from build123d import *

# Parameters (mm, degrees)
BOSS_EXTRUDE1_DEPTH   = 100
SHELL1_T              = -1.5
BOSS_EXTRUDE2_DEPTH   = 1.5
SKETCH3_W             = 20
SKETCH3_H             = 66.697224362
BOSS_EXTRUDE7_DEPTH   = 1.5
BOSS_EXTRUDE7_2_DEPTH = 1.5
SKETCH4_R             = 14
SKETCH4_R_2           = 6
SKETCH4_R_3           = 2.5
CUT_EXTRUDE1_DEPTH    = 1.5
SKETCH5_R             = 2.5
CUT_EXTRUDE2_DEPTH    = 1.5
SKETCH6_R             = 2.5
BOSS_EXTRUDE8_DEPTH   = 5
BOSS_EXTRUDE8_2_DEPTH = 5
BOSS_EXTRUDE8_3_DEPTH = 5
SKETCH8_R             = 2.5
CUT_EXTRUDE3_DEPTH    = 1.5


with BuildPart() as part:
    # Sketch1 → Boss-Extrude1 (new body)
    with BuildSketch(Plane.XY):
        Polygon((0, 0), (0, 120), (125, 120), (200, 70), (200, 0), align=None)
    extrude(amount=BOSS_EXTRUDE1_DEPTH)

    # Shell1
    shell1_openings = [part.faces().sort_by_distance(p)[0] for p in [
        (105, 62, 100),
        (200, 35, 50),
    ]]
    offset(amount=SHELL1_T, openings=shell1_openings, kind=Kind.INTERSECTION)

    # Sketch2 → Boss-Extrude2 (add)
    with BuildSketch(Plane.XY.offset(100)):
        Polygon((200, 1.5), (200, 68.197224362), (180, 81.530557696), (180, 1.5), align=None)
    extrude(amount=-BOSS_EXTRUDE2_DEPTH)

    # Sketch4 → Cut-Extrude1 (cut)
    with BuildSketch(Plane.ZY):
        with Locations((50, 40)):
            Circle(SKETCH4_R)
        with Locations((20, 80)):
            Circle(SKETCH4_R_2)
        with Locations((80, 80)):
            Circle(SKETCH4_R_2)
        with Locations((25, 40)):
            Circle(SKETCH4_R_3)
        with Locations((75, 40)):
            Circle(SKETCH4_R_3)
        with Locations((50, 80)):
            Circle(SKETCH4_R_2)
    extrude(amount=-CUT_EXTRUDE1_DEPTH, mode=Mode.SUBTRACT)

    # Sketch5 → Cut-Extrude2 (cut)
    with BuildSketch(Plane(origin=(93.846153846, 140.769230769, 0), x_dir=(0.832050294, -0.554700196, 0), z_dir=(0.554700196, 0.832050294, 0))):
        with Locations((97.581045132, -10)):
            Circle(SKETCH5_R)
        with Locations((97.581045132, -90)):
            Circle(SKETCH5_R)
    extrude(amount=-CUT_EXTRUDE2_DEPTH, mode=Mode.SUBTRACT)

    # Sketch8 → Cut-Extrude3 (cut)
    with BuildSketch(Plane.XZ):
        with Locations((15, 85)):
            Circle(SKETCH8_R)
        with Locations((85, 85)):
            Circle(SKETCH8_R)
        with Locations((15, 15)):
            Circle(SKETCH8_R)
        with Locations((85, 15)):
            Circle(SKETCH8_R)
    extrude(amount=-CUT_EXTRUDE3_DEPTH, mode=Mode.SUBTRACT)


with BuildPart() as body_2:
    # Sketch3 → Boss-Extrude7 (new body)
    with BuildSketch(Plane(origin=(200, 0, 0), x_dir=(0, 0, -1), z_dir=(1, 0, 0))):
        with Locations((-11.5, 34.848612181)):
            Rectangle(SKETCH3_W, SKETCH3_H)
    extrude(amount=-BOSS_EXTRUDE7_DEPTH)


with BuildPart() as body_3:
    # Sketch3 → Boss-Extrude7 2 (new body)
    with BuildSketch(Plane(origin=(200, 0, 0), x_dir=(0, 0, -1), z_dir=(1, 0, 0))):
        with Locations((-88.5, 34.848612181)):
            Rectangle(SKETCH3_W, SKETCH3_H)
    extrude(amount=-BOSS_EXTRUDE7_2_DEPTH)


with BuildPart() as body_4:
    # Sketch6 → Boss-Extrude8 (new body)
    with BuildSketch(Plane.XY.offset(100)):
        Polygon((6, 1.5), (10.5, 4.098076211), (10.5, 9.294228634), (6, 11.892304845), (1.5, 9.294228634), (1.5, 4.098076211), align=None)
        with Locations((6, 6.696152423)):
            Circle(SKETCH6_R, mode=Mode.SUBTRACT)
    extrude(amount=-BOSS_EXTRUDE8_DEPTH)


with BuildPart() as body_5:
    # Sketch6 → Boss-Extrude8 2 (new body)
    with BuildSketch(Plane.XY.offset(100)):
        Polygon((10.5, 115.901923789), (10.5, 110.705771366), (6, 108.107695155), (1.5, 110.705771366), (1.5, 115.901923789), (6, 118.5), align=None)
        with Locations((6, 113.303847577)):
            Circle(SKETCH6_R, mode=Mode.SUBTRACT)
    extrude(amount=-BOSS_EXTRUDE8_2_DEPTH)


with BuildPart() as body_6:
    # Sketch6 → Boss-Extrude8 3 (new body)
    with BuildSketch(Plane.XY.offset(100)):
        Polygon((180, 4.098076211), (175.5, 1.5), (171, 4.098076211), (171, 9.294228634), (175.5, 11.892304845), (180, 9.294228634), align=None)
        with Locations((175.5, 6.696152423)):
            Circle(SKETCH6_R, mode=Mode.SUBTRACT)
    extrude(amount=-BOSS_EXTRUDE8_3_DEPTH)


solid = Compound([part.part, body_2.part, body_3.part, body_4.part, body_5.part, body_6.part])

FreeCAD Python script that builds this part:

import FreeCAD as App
import Part
import Sketcher
from FreeCAD import Vector
Q = App.Units.Quantity


def faces_at(feature, points):
    """Names of the faces that lie closest to the given points."""
    faces = feature.Shape.Faces
    near = lambda p: min(range(len(faces)), key=lambda i: faces[i].distToShape(Part.Vertex(*p))[0])
    return sorted({f"Face{near(p) + 1}" for p in points})


def add_polygon(sketch, points):
    """Adds a closed chain of lines whose ends are joined by coincident constraints."""
    first, n = sketch.GeometryCount, len(points)
    for a, b in zip(points, points[1:] + points[:1]):
        sketch.addGeometry(Part.LineSegment(App.Vector(*a, 0), App.Vector(*b, 0)), False)
    for i in range(n):
        sketch.addConstraint(Sketcher.Constraint("Coincident", first + i, 2, first + (i + 1) % n, 1))

doc = App.newDocument("Part")
body = doc.addObject("PartDesign::Body", "Body")

# Sketch on XY plane
sketch1 = body.newObject("Sketcher::SketchObject", "Sketch")
sketch1.AttachmentSupport = (doc.getObject("XY_Plane"), [""])
sketch1.MapMode = "FlatFace"
add_polygon(sketch1, [(0, 120), (0, 0), (200, 0), (200, 70), (125, 120)])  # lines 0-4
sketch1.addConstraint(Sketcher.Constraint("Vertical", 0))
sketch1.addConstraint(Sketcher.Constraint("Horizontal", 1))
sketch1.addConstraint(Sketcher.Constraint("Vertical", 2))
sketch1.addConstraint(Sketcher.Constraint("Horizontal", 4))
sketch1.addConstraint(Sketcher.Constraint("Coincident", 0, 2, -1, 1))
sketch1.addConstraint(Sketcher.Constraint("DistanceX", 1, 1, 1, 2, Q("200 mm")))
sketch1.addConstraint(Sketcher.Constraint("DistanceX", 4, 2, 4, 1, Q("125 mm")))
sketch1.addConstraint(Sketcher.Constraint("DistanceY", 0, 2, 0, 1, Q("120 mm")))
sketch1.addConstraint(Sketcher.Constraint("DistanceY", 2, 1, 2, 2, Q("70 mm")))
pad1 = body.newObject("PartDesign::Pad", "Pad")
pad1.Profile = sketch1
pad1.Length = 100
doc.recompute()

thickness = body.newObject("PartDesign::Thickness", "Thickness")
thickness.Base = (pad1, faces_at(pad1, [(100, 60, 100), (200, 35, 50)]))
thickness.Value = 1.5
thickness.Reversed = True
thickness.Join = "Intersection"

# Sketch on XY plane
sketch2 = body.newObject("Sketcher::SketchObject", "Sketch001")
sketch2.AttachmentSupport = (doc.getObject("XY_Plane"), [""])
sketch2.MapMode = "FlatFace"
sketch2.AttachmentOffset = App.Placement(Vector(0, 0, 100), App.Rotation())
add_polygon(sketch2, [(200, 2), (200, 68), (180, 82), (180, 2)])  # lines 0-3
sketch2.addConstraint(Sketcher.Constraint("Vertical", 0))
sketch2.addConstraint(Sketcher.Constraint("Vertical", 2))
sketch2.addConstraint(Sketcher.Constraint("Horizontal", 3))
sketch2.addConstraint(Sketcher.Constraint("DistanceX", 3, 1, 3, 2, Q("20 mm")))
sketch2.addConstraint(Sketcher.Constraint("DistanceX", -1, 1, 0, 2, Q("200 mm")))
sketch2.addConstraint(Sketcher.Constraint("DistanceY", -1, 1, 2, 2, Q("1.5 mm")))
sketch2.addConstraint(Sketcher.Constraint("Distance", 1, Q("24.037009 mm")))
sketch2.addConstraint(Sketcher.Constraint("DistanceY", 0, 1, 0, 2, Q("66.697224 mm")))
pad2 = body.newObject("PartDesign::Pad", "Pad001")
pad2.Profile = sketch2
pad2.Length = 1.5
pad2.Reversed = True

# Sketch on YZ plane
sketch3 = body.newObject("Sketcher::SketchObject", "Sketch002")
sketch3.AttachmentSupport = (doc.getObject("YZ_Plane"), [""])
sketch3.MapMode = "FlatFace"
sketch3.addGeometry(Part.Circle(Vector(40, 50, 0), Vector(0, 0, 1), 14), False)
sketch3.addGeometry(Part.Circle(Vector(80, 20, 0), Vector(0, 0, 1), 6), False)
sketch3.addGeometry(Part.Circle(Vector(80, 80, 0), Vector(0, 0, 1), 6), False)
sketch3.addGeometry(Part.Circle(Vector(40, 25, 0), Vector(0, 0, 1), 2.5), False)
sketch3.addGeometry(Part.Circle(Vector(40, 75, 0), Vector(0, 0, 1), 2.5), False)
sketch3.addGeometry(Part.Circle(Vector(80, 50, 0), Vector(0, 0, 1), 6), False)
sketch3.addConstraint(Sketcher.Constraint("Equal", 1, 2))
sketch3.addConstraint(Sketcher.Constraint("Equal", 3, 4))
sketch3.addConstraint(Sketcher.Constraint("Equal", 2, 5))
sketch3.addConstraint(Sketcher.Constraint("Horizontal", 0, 3, 5, 3))
sketch3.addConstraint(Sketcher.Constraint("Vertical", 1, 3, 2, 3))
sketch3.addConstraint(Sketcher.Constraint("Vertical", 0, 3, 3, 3))
sketch3.addConstraint(Sketcher.Constraint("Vertical", 3, 3, 4, 3))
sketch3.addConstraint(Sketcher.Constraint("Vertical", 2, 3, 5, 3))
sketch3.addConstraint(Sketcher.Constraint("Diameter", 0, Q("28 mm")))
sketch3.addConstraint(Sketcher.Constraint("Diameter", 1, Q("12 mm")))
sketch3.addConstraint(Sketcher.Constraint("Diameter", 3, Q("5 mm")))
sketch3.addConstraint(Sketcher.Constraint("DistanceX", -1, 1, 0, 3, Q("40 mm")))
sketch3.addConstraint(Sketcher.Constraint("DistanceY", -1, 1, 0, 3, Q("50 mm")))
sketch3.addConstraint(Sketcher.Constraint("DistanceX", -1, 1, 1, 3, Q("80 mm")))
sketch3.addConstraint(Sketcher.Constraint("DistanceY", -1, 1, 1, 3, Q("20 mm")))
sketch3.addConstraint(Sketcher.Constraint("DistanceY", -1, 1, 2, 3, Q("80 mm")))
sketch3.addConstraint(Sketcher.Constraint("DistanceY", -1, 1, 3, 3, Q("25 mm")))
sketch3.addConstraint(Sketcher.Constraint("DistanceY", -1, 1, 4, 3, Q("75 mm")))
pocket1 = body.newObject("PartDesign::Pocket", "Pocket")
pocket1.Profile = sketch3
pocket1.Length = 1.5
pocket1.Reversed = True

# Sketch on an angled plane
sketch4 = body.newObject("Sketcher::SketchObject", "Sketch003")
sketch4.Placement = App.Placement(Vector(93.846154, 140.769231, 0), App.Rotation(Vector(0.832050294, -0.554700196, 0), Vector(0, 0, -0.999999999), Vector(0.554700196, 0.832050294, 0), "ZXY"))
sketch4.addGeometry(Part.Circle(Vector(97.6, -10, 0), Vector(0, 0, 1), 2.5), False)
sketch4.addGeometry(Part.Circle(Vector(97.6, -90, 0), Vector(0, 0, 1), 2.5), False)
sketch4.addConstraint(Sketcher.Constraint("Equal", 0, 1))
sketch4.addConstraint(Sketcher.Constraint("Vertical", 0, 3, 1, 3))
sketch4.addConstraint(Sketcher.Constraint("Diameter", 0, Q("5 mm")))
sketch4.addConstraint(Sketcher.Constraint("DistanceY", 0, 3, -1, 1, Q("10 mm")))
sketch4.addConstraint(Sketcher.Constraint("DistanceY", 1, 3, -1, 1, Q("90 mm")))
sketch4.addConstraint(Sketcher.Constraint("DistanceX", -1, 1, 0, 3, Q("97.581045 mm")))
pocket2 = body.newObject("PartDesign::Pocket", "Pocket001")
pocket2.Profile = sketch4
pocket2.Length = 1.5

# Sketch on XZ plane
sketch5 = body.newObject("Sketcher::SketchObject", "Sketch004")
sketch5.AttachmentSupport = (doc.getObject("XZ_Plane"), [""])
sketch5.MapMode = "FlatFace"
sketch5.addGeometry(Part.Circle(Vector(15, 85, 0), Vector(0, 0, 1), 2.5), False)
sketch5.addGeometry(Part.Circle(Vector(85, 85, 0), Vector(0, 0, 1), 2.5), False)
sketch5.addGeometry(Part.Circle(Vector(15, 15, 0), Vector(0, 0, 1), 2.5), False)
sketch5.addGeometry(Part.Circle(Vector(85, 15, 0), Vector(0, 0, 1), 2.5), False)
sketch5.addConstraint(Sketcher.Constraint("Equal", 0, 1))
sketch5.addConstraint(Sketcher.Constraint("Equal", 1, 2))
sketch5.addConstraint(Sketcher.Constraint("Equal", 2, 3))
sketch5.addConstraint(Sketcher.Constraint("Horizontal", 0, 3, 1, 3))
sketch5.addConstraint(Sketcher.Constraint("Horizontal", 2, 3, 3, 3))
sketch5.addConstraint(Sketcher.Constraint("Vertical", 0, 3, 2, 3))
sketch5.addConstraint(Sketcher.Constraint("Vertical", 1, 3, 3, 3))
sketch5.addConstraint(Sketcher.Constraint("Diameter", 0, Q("5 mm")))
sketch5.addConstraint(Sketcher.Constraint("DistanceX", -1, 1, 0, 3, Q("15 mm")))
sketch5.addConstraint(Sketcher.Constraint("DistanceY", -1, 1, 0, 3, Q("85 mm")))
sketch5.addConstraint(Sketcher.Constraint("DistanceX", -1, 1, 1, 3, Q("85 mm")))
sketch5.addConstraint(Sketcher.Constraint("DistanceY", -1, 1, 2, 3, Q("15 mm")))
pocket3 = body.newObject("PartDesign::Pocket", "Pocket002")
pocket3.Profile = sketch5
pocket3.Length = 1.5
body2 = doc.addObject("PartDesign::Body", "Body001")

# Sketch on YZ plane
sketch6 = body2.newObject("Sketcher::SketchObject", "Sketch005")
sketch6.AttachmentSupport = (doc.getObject("YZ_Plane001"), [""])
sketch6.MapMode = "FlatFace"
sketch6.AttachmentOffset = App.Placement(Vector(0, 0, 200), App.Rotation())
add_polygon(sketch6, [(68, 22), (2, 22), (2, 2), (68, 2)])  # lines 0-3
sketch6.addConstraint(Sketcher.Constraint("Horizontal", 0))
sketch6.addConstraint(Sketcher.Constraint("Vertical", 1))
sketch6.addConstraint(Sketcher.Constraint("Horizontal", 2))
sketch6.addConstraint(Sketcher.Constraint("Vertical", 3))
sketch6.addConstraint(Sketcher.Constraint("DistanceY", 1, 2, 1, 1, Q("20 mm")))
sketch6.addConstraint(Sketcher.Constraint("DistanceX", -1, 1, 0, 2, Q("1.5 mm")))
sketch6.addConstraint(Sketcher.Constraint("DistanceY", -1, 1, 0, 2, Q("21.5 mm")))
sketch6.addConstraint(Sketcher.Constraint("DistanceX", 0, 2, 0, 1, Q("66.697224 mm")))
pad3 = body2.newObject("PartDesign::Pad", "Pad002")
pad3.Profile = sketch6
pad3.Length = 1.5
pad3.Reversed = True
body3 = doc.addObject("PartDesign::Body", "Body002")

# Sketch on YZ plane
sketch7 = body3.newObject("Sketcher::SketchObject", "Sketch006")
sketch7.AttachmentSupport = (doc.getObject("YZ_Plane002"), [""])
sketch7.MapMode = "FlatFace"
sketch7.AttachmentOffset = App.Placement(Vector(0, 0, 200), App.Rotation())
add_polygon(sketch7, [(68, 98), (2, 98), (2, 78), (68, 78)])  # lines 0-3
sketch7.addConstraint(Sketcher.Constraint("Horizontal", 0))
sketch7.addConstraint(Sketcher.Constraint("Vertical", 1))
sketch7.addConstraint(Sketcher.Constraint("Horizontal", 2))
sketch7.addConstraint(Sketcher.Constraint("Vertical", 3))
sketch7.addConstraint(Sketcher.Constraint("DistanceY", 1, 2, 1, 1, Q("20 mm")))
sketch7.addConstraint(Sketcher.Constraint("DistanceX", -1, 1, 0, 2, Q("1.5 mm")))
sketch7.addConstraint(Sketcher.Constraint("DistanceY", -1, 1, 0, 2, Q("98.5 mm")))
sketch7.addConstraint(Sketcher.Constraint("DistanceX", 0, 2, 0, 1, Q("66.697224 mm")))
pad4 = body3.newObject("PartDesign::Pad", "Pad003")
pad4.Profile = sketch7
pad4.Length = 1.5
pad4.Reversed = True
body4 = doc.addObject("PartDesign::Body", "Body003")

# Sketch on XY plane
sketch8 = body4.newObject("Sketcher::SketchObject", "Sketch007")
sketch8.AttachmentSupport = (doc.getObject("XY_Plane003"), [""])
sketch8.MapMode = "FlatFace"
sketch8.AttachmentOffset = App.Placement(Vector(0, 0, 100), App.Rotation())
add_polygon(sketch8, [(6, 1.5), (10.5, 4.1), (10.5, 9.3), (6, 11.9), (1.5, 9.3), (1.5, 4.1)])  # lines 0-5
sketch8.addGeometry(Part.Circle(Vector(6, 6.7, 0), Vector(0, 0, 1), 2.5), False)  # 6
sketch8.addConstraint(Sketcher.Constraint("Vertical", 1))
sketch8.addConstraint(Sketcher.Constraint("Vertical", 4))
sketch8.addConstraint(Sketcher.Constraint("Parallel", 0, 3))
sketch8.addConstraint(Sketcher.Constraint("Parallel", 2, 5))
sketch8.addConstraint(Sketcher.Constraint("Horizontal", 1, 2, 3, 2))
sketch8.addConstraint(Sketcher.Constraint("Horizontal", 0, 2, 4, 2))
sketch8.addConstraint(Sketcher.Constraint("Vertical", 6, 3, 2, 2))
sketch8.addConstraint(Sketcher.Constraint("Vertical", 2, 2, 5, 2))
sketch8.addConstraint(Sketcher.Constraint("Diameter", 6, Q("5 mm")))
sketch8.addConstraint(Sketcher.Constraint("Angle", 0, Q("30 deg")))
sketch8.addConstraint(Sketcher.Constraint("DistanceX", -1, 1, 6, 3, Q("6 mm")))
sketch8.addConstraint(Sketcher.Constraint("DistanceX", 3, 2, 1, 2, Q("9 mm")))
sketch8.addConstraint(Sketcher.Constraint("DistanceY", -1, 1, 5, 2, Q("1.5 mm")))
sketch8.addConstraint(Sketcher.Constraint("DistanceY", 1, 1, 1, 2, Q("5.196152 mm")))
sketch8.addConstraint(Sketcher.Constraint("DistanceY", -1, 1, 6, 3, Q("6.696152 mm")))
pad5 = body4.newObject("PartDesign::Pad", "Pad004")
pad5.Profile = sketch8
pad5.Length = 5
pad5.Reversed = True
body5 = doc.addObject("PartDesign::Body", "Body004")

# Sketch on XY plane
sketch9 = body5.newObject("Sketcher::SketchObject", "Sketch008")
sketch9.AttachmentSupport = (doc.getObject("XY_Plane004"), [""])
sketch9.MapMode = "FlatFace"
sketch9.AttachmentOffset = App.Placement(Vector(0, 0, 100), App.Rotation())
add_polygon(sketch9, [(10.5, 110.7), (10.5, 115.9), (6, 118.5), (1.5, 115.9), (1.5, 110.7), (6, 108.1)])  # lines 0-5
sketch9.addGeometry(Part.Circle(Vector(6, 113.3, 0), Vector(0, 0, 1), 2.5), False)  # 6
sketch9.addConstraint(Sketcher.Constraint("Vertical", 0))
sketch9.addConstraint(Sketcher.Constraint("Vertical", 3))
sketch9.addConstraint(Sketcher.Constraint("Parallel", 1, 4))
sketch9.addConstraint(Sketcher.Constraint("Parallel", 2, 5))
sketch9.addConstraint(Sketcher.Constraint("Horizontal", 0, 2, 2, 2))
sketch9.addConstraint(Sketcher.Constraint("Horizontal", 3, 2, 5, 2))
sketch9.addConstraint(Sketcher.Constraint("Vertical", 6, 3, 1, 2))
sketch9.addConstraint(Sketcher.Constraint("Vertical", 1, 2, 4, 2))
sketch9.addConstraint(Sketcher.Constraint("Diameter", 6, Q("5 mm")))
sketch9.addConstraint(Sketcher.Constraint("Angle", 1, Q("150 deg")))
sketch9.addConstraint(Sketcher.Constraint("DistanceX", -1, 1, 6, 3, Q("6 mm")))
sketch9.addConstraint(Sketcher.Constraint("DistanceX", 2, 2, 0, 2, Q("9 mm")))
sketch9.addConstraint(Sketcher.Constraint("DistanceY", -1, 1, 1, 2, Q("118.5 mm")))
sketch9.addConstraint(Sketcher.Constraint("DistanceY", 0, 1, 0, 2, Q("5.196152 mm")))
sketch9.addConstraint(Sketcher.Constraint("DistanceY", -1, 1, 6, 3, Q("113.303848 mm")))
pad6 = body5.newObject("PartDesign::Pad", "Pad005")
pad6.Profile = sketch9
pad6.Length = 5
pad6.Reversed = True
body6 = doc.addObject("PartDesign::Body", "Body005")

# Sketch on XY plane
sketch10 = body6.newObject("Sketcher::SketchObject", "Sketch009")
sketch10.AttachmentSupport = (doc.getObject("XY_Plane005"), [""])
sketch10.MapMode = "FlatFace"
sketch10.AttachmentOffset = App.Placement(Vector(0, 0, 100), App.Rotation())
add_polygon(sketch10, [(175.5, 1.5), (180, 4.1), (180, 9.3), (175.5, 11.9), (171, 9.3), (171, 4.1)])  # lines 0-5
sketch10.addGeometry(Part.Circle(Vector(175.5, 6.7, 0), Vector(0, 0, 1), 2.5), False)  # 6
sketch10.addConstraint(Sketcher.Constraint("Vertical", 1))
sketch10.addConstraint(Sketcher.Constraint("Vertical", 4))
sketch10.addConstraint(Sketcher.Constraint("Parallel", 0, 3))
sketch10.addConstraint(Sketcher.Constraint("Parallel", 2, 5))
sketch10.addConstraint(Sketcher.Constraint("Horizontal", 1, 2, 3, 2))
sketch10.addConstraint(Sketcher.Constraint("Horizontal", 0, 2, 4, 2))
sketch10.addConstraint(Sketcher.Constraint("Vertical", 6, 3, 2, 2))
sketch10.addConstraint(Sketcher.Constraint("Vertical", 2, 2, 5, 2))
sketch10.addConstraint(Sketcher.Constraint("Diameter", 6, Q("5 mm")))
sketch10.addConstraint(Sketcher.Constraint("Angle", 0, Q("30 deg")))
sketch10.addConstraint(Sketcher.Constraint("DistanceX", -1, 1, 0, 2, Q("180 mm")))
sketch10.addConstraint(Sketcher.Constraint("DistanceX", -1, 1, 3, 2, Q("171 mm")))
sketch10.addConstraint(Sketcher.Constraint("DistanceY", -1, 1, 5, 2, Q("1.5 mm")))
sketch10.addConstraint(Sketcher.Constraint("DistanceY", 1, 1, 1, 2, Q("5.196152 mm")))
sketch10.addConstraint(Sketcher.Constraint("DistanceY", -1, 1, 6, 3, Q("6.696152 mm")))
pad7 = body6.newObject("PartDesign::Pad", "Pad006")
pad7.Profile = sketch10
pad7.Length = 5
pad7.Reversed = True

doc.recompute()
